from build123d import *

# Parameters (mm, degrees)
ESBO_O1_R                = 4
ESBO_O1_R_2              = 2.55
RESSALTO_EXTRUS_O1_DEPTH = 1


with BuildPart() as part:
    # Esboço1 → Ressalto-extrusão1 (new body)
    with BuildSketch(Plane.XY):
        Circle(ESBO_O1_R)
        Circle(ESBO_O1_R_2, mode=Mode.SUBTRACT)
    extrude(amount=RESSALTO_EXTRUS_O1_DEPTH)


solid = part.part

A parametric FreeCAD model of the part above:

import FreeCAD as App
import Part
import Sketcher

V = App.Vector

doc = App.newDocument("Part")
body = doc.addObject("PartDesign::Body", "Body")

# Sketch on XY plane
sketch1 = body.newObject("Sketcher::SketchObject", "Sketch")
sketch1.AttachmentSupport = (doc.getObject("XY_Plane"), [""])
sketch1.MapMode = "FlatFace"
sketch1.addGeometry(Part.Circle(V(0, 0, 0), V(0, 0, 1), 4), False)
sketch1.addGeometry(Part.Circle(V(0, 0, 0), V(0, 0, 1), 2.5), False)
sketch1.addConstraint(Sketcher.Constraint("Coincident", 0, 3, -1, 1))
sketch1.addConstraint(Sketcher.Constraint("Coincident", 1, 3, -1, 1))
sketch1.addConstraint(Sketcher.Constraint("Diameter", 0, 8.0))
sketch1.addConstraint(Sketcher.Constraint("Diameter", 1, 5.1))
pad1 = body.newObject("PartDesign::Pad", "Pad")
pad1.Profile = sketch1
pad1.Length = 1

doc.recompute()
